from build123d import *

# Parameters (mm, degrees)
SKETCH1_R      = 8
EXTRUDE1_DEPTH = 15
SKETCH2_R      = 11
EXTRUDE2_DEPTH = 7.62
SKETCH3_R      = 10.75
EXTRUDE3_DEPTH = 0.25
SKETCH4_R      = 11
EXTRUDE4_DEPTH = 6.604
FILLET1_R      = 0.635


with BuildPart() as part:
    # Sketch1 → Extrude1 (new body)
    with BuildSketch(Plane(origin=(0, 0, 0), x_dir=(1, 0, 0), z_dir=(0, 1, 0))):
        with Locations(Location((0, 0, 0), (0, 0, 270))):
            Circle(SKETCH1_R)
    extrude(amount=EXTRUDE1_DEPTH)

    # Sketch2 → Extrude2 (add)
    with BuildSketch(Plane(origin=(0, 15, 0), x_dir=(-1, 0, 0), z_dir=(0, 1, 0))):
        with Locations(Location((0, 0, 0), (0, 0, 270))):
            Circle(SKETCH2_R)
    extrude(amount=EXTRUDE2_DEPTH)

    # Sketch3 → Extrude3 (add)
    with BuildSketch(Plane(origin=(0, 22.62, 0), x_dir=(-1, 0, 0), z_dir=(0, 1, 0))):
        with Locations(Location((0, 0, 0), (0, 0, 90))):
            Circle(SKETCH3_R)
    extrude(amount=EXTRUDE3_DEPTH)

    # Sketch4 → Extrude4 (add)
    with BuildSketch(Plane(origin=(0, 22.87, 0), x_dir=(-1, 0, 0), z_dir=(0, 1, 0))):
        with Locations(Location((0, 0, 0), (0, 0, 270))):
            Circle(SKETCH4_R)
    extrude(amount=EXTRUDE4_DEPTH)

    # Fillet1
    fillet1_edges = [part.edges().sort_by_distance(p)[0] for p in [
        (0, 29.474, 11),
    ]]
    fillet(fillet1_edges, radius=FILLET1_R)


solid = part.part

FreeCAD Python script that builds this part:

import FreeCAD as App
import Part
import Sketcher
from FreeCAD import Vector


def edges_at(feature, points):
    """Names of the edges that pass closest to the given points."""
    edges = feature.Shape.Edges
    near = lambda p: min(range(len(edges)), key=lambda i: edges[i].distToShape(Part.Vertex(*p))[0])
    return sorted({f"Edge{near(p) + 1}" for p in points})

doc = App.newDocument("Part")
body = doc.addObject("PartDesign::Body", "Body")

sketch1 = doc.addObject("Sketcher::SketchObject", "Sketch")
body.addObject(sketch1)
sketch1.AttachmentSupport = (doc.XZ_Plane, [""])
sketch1.MapMode = "FlatFace"
sketch1.addGeometry(Part.Circle(Vector(0, 0, 0), Vector(0, 0, 1), 8), False)
sketch1.addConstraint(Sketcher.Constraint("Coincident", 0, 3, -1, 1))
sketch1.addConstraint(Sketcher.Constraint("Diameter", 0, 16.0))
pad1 = doc.addObject("PartDesign::Pad", "Pad")
body.addObject(pad1)
pad1.Profile = sketch1
pad1.Length = 15
pad1.Reversed = True

sketch2 = doc.addObject("Sketcher::SketchObject", "Sketch001")
body.addObject(sketch2)
sketch2.AttachmentSupport = (doc.XZ_Plane, [""])
sketch2.MapMode = "FlatFace"
sketch2.AttachmentOffset = App.Placement(Vector(0, 0, -15), App.Rotation())
sketch2.addGeometry(Part.Circle(Vector(0, 0, 0), Vector(0, 0, 1), 11), False)
sketch2.addConstraint(Sketcher.Constraint("Coincident", 0, 3, -1, 1))
sketch2.addConstraint(Sketcher.Constraint("Diameter", 0, 22.0))
pad2 = doc.addObject("PartDesign::Pad", "Pad001")
body.addObject(pad2)
pad2.Profile = sketch2
pad2.Length = 7.62
pad2.Reversed = True

sketch3 = doc.addObject("Sketcher::SketchObject", "Sketch002")
body.addObject(sketch3)
sketch3.AttachmentSupport = (doc.XZ_Plane, [""])
sketch3.MapMode = "FlatFace"
sketch3.AttachmentOffset = App.Placement(Vector(0, 0, -22.62), App.Rotation())
sketch3.addGeometry(Part.Circle(Vector(0, 0, 0), Vector(0, 0, 1), 11), False)
sketch3.addConstraint(Sketcher.Constraint("Coincident", 0, 3, -1, 1))
sketch3.addConstraint(Sketcher.Constraint("Diameter", 0, 21.5))
pad3 = doc.addObject("PartDesign::Pad", "Pad002")
body.addObject(pad3)
pad3.Profile = sketch3
pad3.Length = 0.25
pad3.Reversed = True

sketch4 = doc.addObject("Sketcher::SketchObject", "Sketch003")
body.addObject(sketch4)
sketch4.AttachmentSupport = (doc.XZ_Plane, [""])
sketch4.MapMode = "FlatFace"
sketch4.AttachmentOffset = App.Placement(Vector(0, 0, -22.87), App.Rotation())
sketch4.addGeometry(Part.Circle(Vector(0, 0, 0), Vector(0, 0, 1), 11), False)
sketch4.addConstraint(Sketcher.Constraint("Coincident", 0, 3, -1, 1))
sketch4.addConstraint(Sketcher.Constraint("Diameter", 0, 22.0))
pad4 = doc.addObject("PartDesign::Pad", "Pad003")
body.addObject(pad4)
pad4.Profile = sketch4
pad4.Length = 6.604
pad4.Reversed = True
doc.recompute()

fillet = doc.addObject("PartDesign::Fillet", "Fillet")
body.addObject(fillet)
fillet.Base = (pad4, edges_at(pad4, [(0, 29.474, 11)]))
fillet.Radius = 0.635

doc.recompute()
